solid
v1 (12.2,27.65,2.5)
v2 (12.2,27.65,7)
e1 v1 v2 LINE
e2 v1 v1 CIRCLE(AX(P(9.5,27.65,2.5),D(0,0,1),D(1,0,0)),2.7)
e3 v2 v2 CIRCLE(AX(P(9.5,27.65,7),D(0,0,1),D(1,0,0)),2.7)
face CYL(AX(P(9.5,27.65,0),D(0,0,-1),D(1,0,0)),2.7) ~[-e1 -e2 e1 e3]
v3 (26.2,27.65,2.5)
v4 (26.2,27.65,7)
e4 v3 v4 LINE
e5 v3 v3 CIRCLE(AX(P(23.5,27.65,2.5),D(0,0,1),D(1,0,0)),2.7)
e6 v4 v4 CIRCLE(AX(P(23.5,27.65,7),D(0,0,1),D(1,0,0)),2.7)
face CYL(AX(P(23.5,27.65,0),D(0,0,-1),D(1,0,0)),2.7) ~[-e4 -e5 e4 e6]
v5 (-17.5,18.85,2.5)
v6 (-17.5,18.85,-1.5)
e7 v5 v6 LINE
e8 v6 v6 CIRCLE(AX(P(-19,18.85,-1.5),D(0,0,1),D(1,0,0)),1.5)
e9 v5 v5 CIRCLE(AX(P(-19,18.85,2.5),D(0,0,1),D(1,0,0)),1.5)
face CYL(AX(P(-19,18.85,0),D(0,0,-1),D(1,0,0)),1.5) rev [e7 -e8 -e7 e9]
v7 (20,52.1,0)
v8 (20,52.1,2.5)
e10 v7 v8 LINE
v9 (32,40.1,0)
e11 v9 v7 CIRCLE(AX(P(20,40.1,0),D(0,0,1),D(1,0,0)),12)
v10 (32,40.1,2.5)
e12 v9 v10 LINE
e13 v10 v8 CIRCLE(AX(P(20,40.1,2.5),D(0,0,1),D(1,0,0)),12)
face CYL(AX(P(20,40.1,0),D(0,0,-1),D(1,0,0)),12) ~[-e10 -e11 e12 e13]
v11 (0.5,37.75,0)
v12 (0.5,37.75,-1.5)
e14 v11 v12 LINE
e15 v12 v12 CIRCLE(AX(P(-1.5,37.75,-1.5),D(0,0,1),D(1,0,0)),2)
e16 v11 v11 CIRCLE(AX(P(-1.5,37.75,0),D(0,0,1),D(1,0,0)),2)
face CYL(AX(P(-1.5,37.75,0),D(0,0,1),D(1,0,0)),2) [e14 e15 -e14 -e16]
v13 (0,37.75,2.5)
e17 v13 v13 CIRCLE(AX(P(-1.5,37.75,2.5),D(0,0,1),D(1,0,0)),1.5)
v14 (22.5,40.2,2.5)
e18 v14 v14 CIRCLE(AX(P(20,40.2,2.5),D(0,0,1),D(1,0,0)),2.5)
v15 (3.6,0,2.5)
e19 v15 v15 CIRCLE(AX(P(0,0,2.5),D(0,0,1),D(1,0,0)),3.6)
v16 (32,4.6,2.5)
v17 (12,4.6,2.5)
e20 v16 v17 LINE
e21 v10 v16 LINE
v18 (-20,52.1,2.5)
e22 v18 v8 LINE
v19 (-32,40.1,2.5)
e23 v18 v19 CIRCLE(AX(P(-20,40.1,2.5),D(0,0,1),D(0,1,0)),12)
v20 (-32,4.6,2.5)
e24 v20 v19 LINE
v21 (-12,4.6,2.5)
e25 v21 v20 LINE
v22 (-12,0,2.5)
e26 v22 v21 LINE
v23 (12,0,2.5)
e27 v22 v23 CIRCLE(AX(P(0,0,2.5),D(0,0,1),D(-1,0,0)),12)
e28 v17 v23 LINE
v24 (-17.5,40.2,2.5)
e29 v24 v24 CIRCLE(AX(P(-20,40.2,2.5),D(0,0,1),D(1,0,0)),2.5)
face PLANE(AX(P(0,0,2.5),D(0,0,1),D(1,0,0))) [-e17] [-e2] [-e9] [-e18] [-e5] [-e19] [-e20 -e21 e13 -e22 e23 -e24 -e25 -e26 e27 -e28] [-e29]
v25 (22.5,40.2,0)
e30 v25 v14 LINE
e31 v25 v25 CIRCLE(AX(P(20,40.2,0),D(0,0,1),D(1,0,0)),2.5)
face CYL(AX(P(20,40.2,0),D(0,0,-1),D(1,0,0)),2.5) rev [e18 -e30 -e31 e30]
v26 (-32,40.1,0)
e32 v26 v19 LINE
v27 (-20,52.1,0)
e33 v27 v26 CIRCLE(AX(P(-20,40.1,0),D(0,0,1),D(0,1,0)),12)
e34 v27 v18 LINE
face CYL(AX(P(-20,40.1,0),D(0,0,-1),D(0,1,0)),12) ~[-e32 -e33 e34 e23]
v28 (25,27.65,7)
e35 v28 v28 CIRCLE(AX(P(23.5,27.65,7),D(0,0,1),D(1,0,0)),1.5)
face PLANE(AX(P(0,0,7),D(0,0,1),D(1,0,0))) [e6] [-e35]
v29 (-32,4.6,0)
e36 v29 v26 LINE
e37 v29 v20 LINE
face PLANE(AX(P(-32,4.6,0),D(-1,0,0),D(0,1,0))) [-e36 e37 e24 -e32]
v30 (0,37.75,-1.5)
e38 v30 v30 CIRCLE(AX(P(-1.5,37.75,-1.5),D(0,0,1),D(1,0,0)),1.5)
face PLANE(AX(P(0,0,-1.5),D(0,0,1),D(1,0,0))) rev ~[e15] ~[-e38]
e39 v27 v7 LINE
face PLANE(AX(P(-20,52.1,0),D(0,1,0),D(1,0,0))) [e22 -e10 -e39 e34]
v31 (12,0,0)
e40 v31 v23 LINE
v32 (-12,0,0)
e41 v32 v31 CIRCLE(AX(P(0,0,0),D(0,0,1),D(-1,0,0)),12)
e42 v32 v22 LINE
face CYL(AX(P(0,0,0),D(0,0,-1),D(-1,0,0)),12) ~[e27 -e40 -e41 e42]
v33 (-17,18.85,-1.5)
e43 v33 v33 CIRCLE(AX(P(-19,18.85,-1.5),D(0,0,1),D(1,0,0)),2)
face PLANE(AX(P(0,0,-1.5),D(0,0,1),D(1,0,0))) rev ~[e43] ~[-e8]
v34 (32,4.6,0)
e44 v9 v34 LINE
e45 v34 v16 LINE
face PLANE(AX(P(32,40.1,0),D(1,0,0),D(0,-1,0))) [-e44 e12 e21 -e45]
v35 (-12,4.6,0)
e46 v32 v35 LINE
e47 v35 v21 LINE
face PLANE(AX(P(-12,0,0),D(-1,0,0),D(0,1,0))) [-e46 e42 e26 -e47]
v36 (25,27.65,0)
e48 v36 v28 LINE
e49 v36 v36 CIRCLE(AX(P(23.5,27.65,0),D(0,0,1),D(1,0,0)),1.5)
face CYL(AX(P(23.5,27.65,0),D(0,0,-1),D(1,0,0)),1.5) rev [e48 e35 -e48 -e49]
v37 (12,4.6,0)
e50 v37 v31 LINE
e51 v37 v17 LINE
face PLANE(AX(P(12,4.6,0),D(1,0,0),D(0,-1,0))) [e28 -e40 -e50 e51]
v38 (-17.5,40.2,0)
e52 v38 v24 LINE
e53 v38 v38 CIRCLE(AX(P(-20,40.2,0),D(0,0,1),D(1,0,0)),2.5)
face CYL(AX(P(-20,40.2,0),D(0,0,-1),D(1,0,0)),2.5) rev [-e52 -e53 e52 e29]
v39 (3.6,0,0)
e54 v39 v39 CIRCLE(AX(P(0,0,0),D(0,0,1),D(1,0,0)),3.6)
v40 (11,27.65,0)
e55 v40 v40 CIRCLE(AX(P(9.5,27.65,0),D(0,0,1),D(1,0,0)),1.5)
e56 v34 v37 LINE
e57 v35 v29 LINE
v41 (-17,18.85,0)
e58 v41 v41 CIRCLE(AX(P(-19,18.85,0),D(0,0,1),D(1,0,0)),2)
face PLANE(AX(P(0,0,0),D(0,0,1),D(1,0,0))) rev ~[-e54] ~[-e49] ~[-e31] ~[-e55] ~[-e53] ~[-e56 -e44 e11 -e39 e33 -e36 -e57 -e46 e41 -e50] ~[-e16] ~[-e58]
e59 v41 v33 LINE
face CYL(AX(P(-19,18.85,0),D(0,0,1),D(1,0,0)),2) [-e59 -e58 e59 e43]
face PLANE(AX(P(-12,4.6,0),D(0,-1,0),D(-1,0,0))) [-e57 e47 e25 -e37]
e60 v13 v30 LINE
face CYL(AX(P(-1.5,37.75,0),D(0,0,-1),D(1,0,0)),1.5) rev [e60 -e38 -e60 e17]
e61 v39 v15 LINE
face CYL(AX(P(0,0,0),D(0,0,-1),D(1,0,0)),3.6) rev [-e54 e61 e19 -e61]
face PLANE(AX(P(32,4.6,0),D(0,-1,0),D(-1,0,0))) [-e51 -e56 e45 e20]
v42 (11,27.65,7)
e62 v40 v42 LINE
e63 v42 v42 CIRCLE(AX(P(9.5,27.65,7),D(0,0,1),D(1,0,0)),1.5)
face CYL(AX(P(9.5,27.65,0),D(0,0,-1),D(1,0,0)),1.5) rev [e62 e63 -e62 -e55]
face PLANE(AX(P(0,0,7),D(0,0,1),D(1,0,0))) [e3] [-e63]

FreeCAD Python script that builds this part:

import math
import FreeCAD as App
import Part
import Sketcher
from FreeCAD import Vector
Q = App.Units.Quantity

doc = App.newDocument("Part")
body = doc.addObject("PartDesign::Body", "Body")

# Sketch on XY plane
sketch1 = doc.addObject("Sketcher::SketchObject", "Sketch")
body.addObject(sketch1)
sketch1.AttachmentSupport = (doc.XY_Plane, [""])
sketch1.MapMode = "FlatFace"
sketch1.addGeometry(Part.LineSegment(Vector(12, 4.6, 0), Vector(32, 4.6, 0)), False)
sketch1.addGeometry(Part.LineSegment(Vector(32, 4.6, 0), Vector(32, 40.1, 0)), False)
sketch1.addGeometry(Part.ArcOfCircle(Part.Circle(Vector(20, 40.1, 0), Vector(0, 0, 1), 12), math.radians(0), math.radians(90)), False)
sketch1.addGeometry(Part.LineSegment(Vector(20, 52.1, 0), Vector(-20, 52.1, 0)), False)
sketch1.addGeometry(Part.ArcOfCircle(Part.Circle(Vector(-20, 40.1, 0), Vector(0, 0, 1), 12), math.radians(90), math.radians(180)), False)
sketch1.addGeometry(Part.LineSegment(Vector(-32, 40.1, 0), Vector(-32, 4.6, 0)), False)
sketch1.addGeometry(Part.LineSegment(Vector(-32, 4.6, 0), Vector(-12, 4.6, 0)), False)
sketch1.addGeometry(Part.LineSegment(Vector(-12, 4.6, 0), Vector(-12, 0, 0)), False)
sketch1.addGeometry(Part.ArcOfCircle(Part.Circle(Vector(0, 0, 0), Vector(0, 0, 1), 12), math.radians(180), math.radians(360)), False)
sketch1.addGeometry(Part.LineSegment(Vector(12, 0, 0), Vector(12, 4.6, 0)), False)
sketch1.addGeometry(Part.Circle(Vector(-19, 18.9, 0), Vector(0, 0, 1), 2), False)
sketch1.addGeometry(Part.Circle(Vector(0, 0, 0), Vector(0, 0, 1), 3.6), False)
sketch1.addGeometry(Part.Circle(Vector(-20, 40.2, 0), Vector(0, 0, 1), 2.5), False)
sketch1.addGeometry(Part.Circle(Vector(-1.5, 37.8, 0), Vector(0, 0, 1), 2), False)
sketch1.addGeometry(Part.Circle(Vector(9.5, 27.6, 0), Vector(0, 0, 1), 2.7), False)
sketch1.addGeometry(Part.Circle(Vector(23.5, 27.6, 0), Vector(0, 0, 1), 2.7), False)
sketch1.addGeometry(Part.Circle(Vector(20, 40.2, 0), Vector(0, 0, 1), 2.5), False)
sketch1.addConstraint(Sketcher.Constraint("Coincident", 0, 2, 1, 1))
sketch1.addConstraint(Sketcher.Constraint("Tangent", 1, 2, 2, 1))
sketch1.addConstraint(Sketcher.Constraint("Tangent", 2, 2, 3, 1))
sketch1.addConstraint(Sketcher.Constraint("Tangent", 3, 2, 4, 1))
sketch1.addConstraint(Sketcher.Constraint("Tangent", 4, 2, 5, 1))
sketch1.addConstraint(Sketcher.Constraint("Coincident", 5, 2, 6, 1))
sketch1.addConstraint(Sketcher.Constraint("Coincident", 6, 2, 7, 1))
sketch1.addConstraint(Sketcher.Constraint("Tangent", 7, 2, 8, 1))
sketch1.addConstraint(Sketcher.Constraint("Tangent", 8, 2, 9, 1))
sketch1.addConstraint(Sketcher.Constraint("Coincident", 9, 2, 0, 1))
sketch1.addConstraint(Sketcher.Constraint("Horizontal", 0))
sketch1.addConstraint(Sketcher.Constraint("Vertical", 1))
sketch1.addConstraint(Sketcher.Constraint("Horizontal", 3))
sketch1.addConstraint(Sketcher.Constraint("Vertical", 5))
sketch1.addConstraint(Sketcher.Constraint("Horizontal", 6))
sketch1.addConstraint(Sketcher.Constraint("Vertical", 7))
sketch1.addConstraint(Sketcher.Constraint("Vertical", 9))
sketch1.addConstraint(Sketcher.Constraint("Coincident", 8, 3, -1, 1))
sketch1.addConstraint(Sketcher.Constraint("Coincident", 11, 3, -1, 1))
sketch1.addConstraint(Sketcher.Constraint("Equal", 2, 4))
sketch1.addConstraint(Sketcher.Constraint("Equal", 4, 8))
sketch1.addConstraint(Sketcher.Constraint("Equal", 10, 13))
sketch1.addConstraint(Sketcher.Constraint("Equal", 14, 15))
sketch1.addConstraint(Sketcher.Constraint("Equal", 12, 16))
sketch1.addConstraint(Sketcher.Constraint("Symmetric", 12, 3, 16, 3, -2))
sketch1.addConstraint(Sketcher.Constraint("Symmetric", 0, 2, 5, 2, -2))
sketch1.addConstraint(Sketcher.Constraint("Horizontal", 14, 3, 15, 3))
sketch1.addConstraint(Sketcher.Constraint("Vertical", 4, 3, 12, 3))
sketch1.addConstraint(Sketcher.Constraint("Diameter", 10, Q("4 mm")))
sketch1.addConstraint(Sketcher.Constraint("Diameter", 12, Q("5 mm")))
sketch1.addConstraint(Sketcher.Constraint("Radius", 2, Q("12 mm")))
sketch1.addConstraint(Sketcher.Constraint("Diameter", 11, Q("7.2 mm")))
sketch1.addConstraint(Sketcher.Constraint("DistanceX", 0, 1, 0, 2, Q("20 mm")))
sketch1.addConstraint(Sketcher.Constraint("DistanceY", 7, 2, 7, 1, Q("4.6 mm")))
sketch1.addConstraint(Sketcher.Constraint("DistanceX", 10, 3, -1, 1, Q("19 mm")))
sketch1.addConstraint(Sketcher.Constraint("Diameter", 14, Q("5.4 mm")))
sketch1.addConstraint(Sketcher.Constraint("DistanceX", 13, 3, -1, 1, Q("1.5 mm")))
sketch1.addConstraint(Sketcher.Constraint("DistanceX", -1, 1, 14, 3, Q("9.5 mm")))
sketch1.addConstraint(Sketcher.Constraint("DistanceX", -1, 1, 15, 3, Q("23.5 mm")))
sketch1.addConstraint(Sketcher.Constraint("DistanceY", -1, 1, 2, 2, Q("52.1 mm")))
sketch1.addConstraint(Sketcher.Constraint("DistanceY", 16, 3, 2, 2, Q("11.9 mm")))
sketch1.addConstraint(Sketcher.Constraint("DistanceY", 15, 3, 2, 2, Q("24.45 mm")))
sketch1.addConstraint(Sketcher.Constraint("DistanceY", 13, 3, 2, 2, Q("14.35 mm")))
sketch1.addConstraint(Sketcher.Constraint("DistanceY", 10, 3, 3, 2, Q("33.25 mm")))
pad1 = doc.addObject("PartDesign::Pad", "Pad")
body.addObject(pad1)
pad1.Profile = sketch1
pad1.Length = 2.5

# Sketch on XY plane
sketch2 = doc.addObject("Sketcher::SketchObject", "Sketch001")
body.addObject(sketch2)
sketch2.AttachmentSupport = (doc.XY_Plane, [""])
sketch2.MapMode = "FlatFace"
sketch2.addGeometry(Part.Circle(Vector(9.5, 27.6, 0), Vector(0, 0, 1), 2.7), False)
sketch2.addGeometry(Part.Circle(Vector(9.5, 27.6, 0), Vector(0, 0, 1), 1.5), False)
sketch2.addGeometry(Part.Circle(Vector(23.5, 27.6, 0), Vector(0, 0, 1), 2.7), False)
sketch2.addGeometry(Part.Circle(Vector(23.5, 27.6, 0), Vector(0, 0, 1), 1.5), False)
sketch2.addConstraint(Sketcher.Constraint("Coincident", 1, 3, 0, 3))
sketch2.addConstraint(Sketcher.Constraint("Coincident", 3, 3, 2, 3))
sketch2.addConstraint(Sketcher.Constraint("Equal", 0, 2))
sketch2.addConstraint(Sketcher.Constraint("Equal", 1, 3))
sketch2.addConstraint(Sketcher.Constraint("Horizontal", 1, 3, 2, 3))
sketch2.addConstraint(Sketcher.Constraint("Diameter", 1, Q("3 mm")))
sketch2.addConstraint(Sketcher.Constraint("Diameter", 0, Q("5.4 mm")))
sketch2.addConstraint(Sketcher.Constraint("DistanceX", -1, 1, 0, 3, Q("9.5 mm")))
sketch2.addConstraint(Sketcher.Constraint("DistanceX", -1, 1, 2, 3, Q("23.5 mm")))
sketch2.addConstraint(Sketcher.Constraint("DistanceY", -1, 1, 0, 3, Q("27.65 mm")))
pad2 = doc.addObject("PartDesign::Pad", "Pad001")
body.addObject(pad2)
pad2.Profile = sketch2
pad2.Length = 7

# Sketch on XY plane
sketch3 = doc.addObject("Sketcher::SketchObject", "Sketch002")
body.addObject(sketch3)
sketch3.AttachmentSupport = (doc.XY_Plane, [""])
sketch3.MapMode = "FlatFace"
sketch3.addGeometry(Part.Circle(Vector(-19, 18.9, 0), Vector(0, 0, 1), 2), False)
sketch3.addGeometry(Part.Circle(Vector(-19, 18.9, 0), Vector(0, 0, 1), 1.5), False)
sketch3.addGeometry(Part.Circle(Vector(-1.5, 37.8, 0), Vector(0, 0, 1), 2), False)
sketch3.addGeometry(Part.Circle(Vector(-1.5, 37.8, 0), Vector(0, 0, 1), 1.5), False)
sketch3.addConstraint(Sketcher.Constraint("Coincident", 1, 3, 0, 3))
sketch3.addConstraint(Sketcher.Constraint("Coincident", 3, 3, 2, 3))
sketch3.addConstraint(Sketcher.Constraint("Equal", 0, 2))
sketch3.addConstraint(Sketcher.Constraint("Equal", 1, 3))
sketch3.addConstraint(Sketcher.Constraint("Diameter", 0, Q("4 mm")))
sketch3.addConstraint(Sketcher.Constraint("Diameter", 1, Q("3 mm")))
sketch3.addConstraint(Sketcher.Constraint("DistanceX", 0, 3, -1, 1, Q("19 mm")))
sketch3.addConstraint(Sketcher.Constraint("DistanceX", 2, 3, -1, 1, Q("1.5 mm")))
sketch3.addConstraint(Sketcher.Constraint("DistanceY", 0, 3, 2, 3, Q("18.9 mm")))
sketch3.addConstraint(Sketcher.Constraint("DistanceY", -1, 1, 0, 3, Q("18.85 mm")))
pad3 = doc.addObject("PartDesign::Pad", "Pad002")
body.addObject(pad3)
pad3.Profile = sketch3
pad3.Type = "TwoLengths"
pad3.Length = 2.5
pad3.Length2 = 1.5

doc.recompute()
